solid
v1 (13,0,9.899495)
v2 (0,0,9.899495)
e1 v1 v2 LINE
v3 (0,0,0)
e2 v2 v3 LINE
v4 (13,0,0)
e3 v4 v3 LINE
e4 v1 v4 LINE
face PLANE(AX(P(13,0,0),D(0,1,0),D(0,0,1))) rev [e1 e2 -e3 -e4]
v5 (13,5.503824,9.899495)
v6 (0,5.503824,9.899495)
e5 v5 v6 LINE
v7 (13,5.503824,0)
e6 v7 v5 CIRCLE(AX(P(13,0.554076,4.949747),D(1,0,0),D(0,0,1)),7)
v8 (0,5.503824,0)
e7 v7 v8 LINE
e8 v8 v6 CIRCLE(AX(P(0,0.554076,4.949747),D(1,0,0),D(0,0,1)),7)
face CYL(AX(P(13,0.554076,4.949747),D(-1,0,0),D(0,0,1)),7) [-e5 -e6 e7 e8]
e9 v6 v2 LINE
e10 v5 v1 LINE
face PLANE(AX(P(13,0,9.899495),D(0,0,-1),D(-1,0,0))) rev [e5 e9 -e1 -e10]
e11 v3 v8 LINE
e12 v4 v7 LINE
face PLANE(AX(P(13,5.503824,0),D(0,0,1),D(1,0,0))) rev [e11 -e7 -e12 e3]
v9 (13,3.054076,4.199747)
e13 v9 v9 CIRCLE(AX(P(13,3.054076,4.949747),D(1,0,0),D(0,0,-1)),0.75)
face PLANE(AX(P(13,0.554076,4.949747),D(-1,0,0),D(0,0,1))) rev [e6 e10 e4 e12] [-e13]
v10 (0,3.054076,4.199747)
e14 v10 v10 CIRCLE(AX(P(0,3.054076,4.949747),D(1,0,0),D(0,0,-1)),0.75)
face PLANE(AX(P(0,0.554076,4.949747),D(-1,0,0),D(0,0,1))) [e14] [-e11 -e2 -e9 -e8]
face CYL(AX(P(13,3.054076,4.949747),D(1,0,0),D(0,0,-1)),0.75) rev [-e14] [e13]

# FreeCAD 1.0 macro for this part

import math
import FreeCAD as App
import Part
import Sketcher
from FreeCAD import Vector

doc = App.newDocument("Part")
body = doc.addObject("PartDesign::Body", "Body")

# Sketch on YZ plane
sketch1 = body.newObject("Sketcher::SketchObject", "Sketch")
sketch1.AttachmentSupport = (doc.getObject("YZ_Plane"), [""])
sketch1.MapMode = "FlatFace"
sketch1.addGeometry(Part.LineSegment(Vector(0, 9.899495, 0), Vector(0, 0, 0)), False)
sketch1.addGeometry(Part.LineSegment(Vector(0, 0, 0), Vector(5.503824, 0, 0)), False)
sketch1.addGeometry(Part.ArcOfCircle(Part.Circle(Vector(0.554076, 4.949747, 0), Vector(0, 0, 1), 7), math.radians(-45), math.radians(45)), False)
sketch1.addGeometry(Part.LineSegment(Vector(5.503824, 9.899495, 0), Vector(0, 9.899495, 0)), False)
sketch1.addConstraint(Sketcher.Constraint("Coincident", 0, 2, 1, 1))
sketch1.addConstraint(Sketcher.Constraint("Coincident", 1, 2, 2, 1))
sketch1.addConstraint(Sketcher.Constraint("Coincident", 2, 2, 3, 1))
sketch1.addConstraint(Sketcher.Constraint("Coincident", 3, 2, 0, 1))
sketch1.addConstraint(Sketcher.Constraint("Vertical", 0))
sketch1.addConstraint(Sketcher.Constraint("Horizontal", 1))
sketch1.addConstraint(Sketcher.Constraint("Horizontal", 3))
sketch1.addConstraint(Sketcher.Constraint("Coincident", 0, 2, -1, 1))
sketch1.addConstraint(Sketcher.Constraint("Vertical", 1, 2, 2, 2))
sketch1.addConstraint(Sketcher.Constraint("Radius", 2, 7.0))
sketch1.addConstraint(Sketcher.Constraint("DistanceX", 1, 1, 1, 2, 5.503824))
sketch1.addConstraint(Sketcher.Constraint("DistanceY", 0, 2, 0, 1, 9.899495))
pad1 = body.newObject("PartDesign::Pad", "Pad")
pad1.Profile = sketch1
pad1.Length = 13

# Sketch on YZ plane
sketch2 = body.newObject("Sketcher::SketchObject", "Sketch001")
sketch2.AttachmentSupport = (doc.getObject("YZ_Plane"), [""])
sketch2.MapMode = "FlatFace"
sketch2.AttachmentOffset = App.Placement(Vector(0, 0, 13), App.Rotation())
sketch2.addGeometry(Part.Circle(Vector(3.054076, 4.949747, 0), Vector(0, 0, 1), 0.75), False)
sketch2.addConstraint(Sketcher.Constraint("Diameter", 0, 1.5))
sketch2.addConstraint(Sketcher.Constraint("DistanceX", -1, 1, 0, 3, 3.054076))
sketch2.addConstraint(Sketcher.Constraint("DistanceY", -1, 1, 0, 3, 4.949747))
doc.recompute()
hole = body.newObject("PartDesign::Hole", "Hole")
hole.Profile = sketch2
hole.ThreadType = "None"
hole.Diameter = 1.5
hole.DepthType = "ThroughAll"

doc.recompute()
